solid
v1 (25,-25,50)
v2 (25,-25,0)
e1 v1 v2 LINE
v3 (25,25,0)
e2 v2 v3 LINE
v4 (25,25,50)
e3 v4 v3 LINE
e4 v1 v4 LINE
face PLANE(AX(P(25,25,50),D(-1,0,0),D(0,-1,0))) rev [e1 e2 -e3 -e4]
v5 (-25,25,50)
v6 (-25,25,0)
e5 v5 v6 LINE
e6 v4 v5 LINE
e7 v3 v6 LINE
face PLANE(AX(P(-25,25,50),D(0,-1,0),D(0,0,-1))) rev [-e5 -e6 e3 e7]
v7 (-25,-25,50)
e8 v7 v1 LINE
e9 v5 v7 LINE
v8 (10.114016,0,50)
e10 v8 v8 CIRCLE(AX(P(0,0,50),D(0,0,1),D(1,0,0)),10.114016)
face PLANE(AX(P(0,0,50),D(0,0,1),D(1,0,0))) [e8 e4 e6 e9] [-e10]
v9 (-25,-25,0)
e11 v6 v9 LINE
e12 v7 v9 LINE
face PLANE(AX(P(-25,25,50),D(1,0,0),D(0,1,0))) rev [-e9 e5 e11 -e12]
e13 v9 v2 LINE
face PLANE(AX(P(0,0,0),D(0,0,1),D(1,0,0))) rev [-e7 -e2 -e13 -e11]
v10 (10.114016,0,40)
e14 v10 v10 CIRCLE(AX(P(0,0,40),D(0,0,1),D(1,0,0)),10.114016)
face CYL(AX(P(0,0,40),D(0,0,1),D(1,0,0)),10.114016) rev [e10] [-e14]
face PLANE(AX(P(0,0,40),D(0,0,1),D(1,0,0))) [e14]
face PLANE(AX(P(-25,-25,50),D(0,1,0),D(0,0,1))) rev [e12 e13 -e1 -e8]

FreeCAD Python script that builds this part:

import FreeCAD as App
import Part
import Sketcher

V = App.Vector
Q = App.Units.Quantity

doc = App.newDocument("Part")
body = doc.addObject("PartDesign::Body", "Body")

# Sketch on XY plane
sketch1 = body.newObject("Sketcher::SketchObject", "Sketch")
sketch1.AttachmentSupport = (doc.getObject("XY_Plane"), [""])
sketch1.MapMode = "FlatFace"
sketch1.addGeometry([
    Part.LineSegment(V(-25, 25, 0), V(-25, -25, 0)),
    Part.LineSegment(V(-25, -25, 0), V(25, -25, 0)),
    Part.LineSegment(V(25, -25, 0), V(25, 25, 0)),
    Part.LineSegment(V(25, 25, 0), V(-25, 25, 0)),
], False)
sketch1.addConstraint([
    Sketcher.Constraint("Coincident", 0, 2, 1, 1),
    Sketcher.Constraint("Coincident", 1, 2, 2, 1),
    Sketcher.Constraint("Coincident", 2, 2, 3, 1),
    Sketcher.Constraint("Coincident", 3, 2, 0, 1),
    Sketcher.Constraint("Vertical", 0),
    Sketcher.Constraint("Horizontal", 1),
    Sketcher.Constraint("Vertical", 2),
    Sketcher.Constraint("Horizontal", 3),
    Sketcher.Constraint("Symmetric", 0, 2, 2, 2, -1, 1),
    Sketcher.Constraint("Equal", 3, 0),
    Sketcher.Constraint("DistanceX", 1, 1, 1, 2, Q("50 mm")),
])
pad1 = body.newObject("PartDesign::Pad", "Pad")
pad1.Profile = sketch1
pad1.Length = 50

# Sketch on XY plane
sketch2 = body.newObject("Sketcher::SketchObject", "Sketch001")
sketch2.AttachmentSupport = (doc.getObject("XY_Plane"), [""])
sketch2.MapMode = "FlatFace"
sketch2.AttachmentOffset = App.Placement(V(0, 0, 50), App.Rotation())
sketch2.addGeometry(Part.Circle(V(0, 0, 0), V(0, 0, 1), 10), False)
sketch2.addConstraint([
    Sketcher.Constraint("Coincident", 0, 3, -1, 1),
    Sketcher.Constraint("Diameter", 0, Q("20.228031 mm")),
])
pocket1 = body.newObject("PartDesign::Pocket", "Pocket")
pocket1.Profile = sketch2
pocket1.Length = 10

doc.recompute()
